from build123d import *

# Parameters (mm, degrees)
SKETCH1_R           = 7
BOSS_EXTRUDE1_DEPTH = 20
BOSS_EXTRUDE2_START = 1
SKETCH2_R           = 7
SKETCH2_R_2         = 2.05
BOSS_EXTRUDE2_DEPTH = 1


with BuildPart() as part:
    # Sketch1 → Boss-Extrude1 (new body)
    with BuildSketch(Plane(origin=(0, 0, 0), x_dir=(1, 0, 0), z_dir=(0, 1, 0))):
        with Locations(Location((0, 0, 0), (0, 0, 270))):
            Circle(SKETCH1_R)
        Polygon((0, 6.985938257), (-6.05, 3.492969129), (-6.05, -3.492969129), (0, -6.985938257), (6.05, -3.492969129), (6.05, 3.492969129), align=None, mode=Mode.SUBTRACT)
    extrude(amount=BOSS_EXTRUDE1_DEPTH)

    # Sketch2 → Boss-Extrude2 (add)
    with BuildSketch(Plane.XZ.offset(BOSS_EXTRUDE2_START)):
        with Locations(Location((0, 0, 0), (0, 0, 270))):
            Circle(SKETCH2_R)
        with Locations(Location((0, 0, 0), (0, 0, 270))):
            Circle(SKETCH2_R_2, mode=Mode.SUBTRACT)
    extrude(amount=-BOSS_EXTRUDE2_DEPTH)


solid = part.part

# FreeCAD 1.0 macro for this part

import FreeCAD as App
import Part
import Sketcher

V = App.Vector
Q = App.Units.Quantity

doc = App.newDocument("Part")
body = doc.addObject("PartDesign::Body", "Body")

sketch1 = doc.addObject("Sketcher::SketchObject", "Sketch")
body.addObject(sketch1)
sketch1.AttachmentSupport = (doc.XZ_Plane, [""])
sketch1.MapMode = "FlatFace"
sketch1.addGeometry(Part.Circle(V(0, 0, 0), V(0, 0, 1), 7), False)
sketch1.addGeometry(Part.LineSegment(V(-6, -3, 0), V(0, -7, 0)), False)
sketch1.addGeometry(Part.LineSegment(V(0, -7, 0), V(6, -3, 0)), False)
sketch1.addGeometry(Part.LineSegment(V(6, -3, 0), V(6, 3, 0)), False)
sketch1.addGeometry(Part.LineSegment(V(6, 3, 0), V(0, 7, 0)), False)
sketch1.addGeometry(Part.LineSegment(V(0, 7, 0), V(-6, 3, 0)), False)
sketch1.addGeometry(Part.LineSegment(V(-6, 3, 0), V(-6, -3, 0)), False)
sketch1.addConstraint(Sketcher.Constraint("Coincident", 1, 2, 2, 1))
sketch1.addConstraint(Sketcher.Constraint("Coincident", 2, 2, 3, 1))
sketch1.addConstraint(Sketcher.Constraint("Coincident", 3, 2, 4, 1))
sketch1.addConstraint(Sketcher.Constraint("Coincident", 4, 2, 5, 1))
sketch1.addConstraint(Sketcher.Constraint("Coincident", 5, 2, 6, 1))
sketch1.addConstraint(Sketcher.Constraint("Coincident", 6, 2, 1, 1))
sketch1.addConstraint(Sketcher.Constraint("Vertical", 3))
sketch1.addConstraint(Sketcher.Constraint("Vertical", 6))
sketch1.addConstraint(Sketcher.Constraint("Coincident", 0, 3, -1, 1))
sketch1.addConstraint(Sketcher.Constraint("Symmetric", 1, 2, 4, 2, -1, 1))
sketch1.addConstraint(Sketcher.Constraint("Symmetric", 2, 2, 5, 2, -1, 1))
sketch1.addConstraint(Sketcher.Constraint("PointOnObject", 1, 2, -2))
sketch1.addConstraint(Sketcher.Constraint("Parallel", 1, 4))
sketch1.addConstraint(Sketcher.Constraint("Horizontal", 3, 2, 5, 2))
sketch1.addConstraint(Sketcher.Constraint("Diameter", 0, 14.0))
sketch1.addConstraint(Sketcher.Constraint("Angle", 1, Q("-30 deg")))
sketch1.addConstraint(Sketcher.Constraint("DistanceX", 5, 2, 3, 2, 12.1))
sketch1.addConstraint(Sketcher.Constraint("DistanceY", 3, 1, 3, 2, 6.985938))
pad1 = doc.addObject("PartDesign::Pad", "Pad")
body.addObject(pad1)
pad1.Profile = sketch1
pad1.Length = 20
pad1.Reversed = True

sketch2 = doc.addObject("Sketcher::SketchObject", "Sketch001")
body.addObject(sketch2)
sketch2.AttachmentSupport = (doc.XZ_Plane, [""])
sketch2.MapMode = "FlatFace"
sketch2.AttachmentOffset = App.Placement(V(0, 0, 1), App.Rotation())
sketch2.addGeometry(Part.Circle(V(0, 0, 0), V(0, 0, 1), 7), False)
sketch2.addGeometry(Part.Circle(V(0, 0, 0), V(0, 0, 1), 2), False)
sketch2.addConstraint(Sketcher.Constraint("Coincident", 0, 3, -1, 1))
sketch2.addConstraint(Sketcher.Constraint("Coincident", 1, 3, -1, 1))
sketch2.addConstraint(Sketcher.Constraint("Diameter", 0, 14.0))
sketch2.addConstraint(Sketcher.Constraint("Diameter", 1, 4.1))
pad2 = doc.addObject("PartDesign::Pad", "Pad001")
body.addObject(pad2)
pad2.Profile = sketch2
pad2.Length = 1
pad2.Reversed = True

doc.recompute()
